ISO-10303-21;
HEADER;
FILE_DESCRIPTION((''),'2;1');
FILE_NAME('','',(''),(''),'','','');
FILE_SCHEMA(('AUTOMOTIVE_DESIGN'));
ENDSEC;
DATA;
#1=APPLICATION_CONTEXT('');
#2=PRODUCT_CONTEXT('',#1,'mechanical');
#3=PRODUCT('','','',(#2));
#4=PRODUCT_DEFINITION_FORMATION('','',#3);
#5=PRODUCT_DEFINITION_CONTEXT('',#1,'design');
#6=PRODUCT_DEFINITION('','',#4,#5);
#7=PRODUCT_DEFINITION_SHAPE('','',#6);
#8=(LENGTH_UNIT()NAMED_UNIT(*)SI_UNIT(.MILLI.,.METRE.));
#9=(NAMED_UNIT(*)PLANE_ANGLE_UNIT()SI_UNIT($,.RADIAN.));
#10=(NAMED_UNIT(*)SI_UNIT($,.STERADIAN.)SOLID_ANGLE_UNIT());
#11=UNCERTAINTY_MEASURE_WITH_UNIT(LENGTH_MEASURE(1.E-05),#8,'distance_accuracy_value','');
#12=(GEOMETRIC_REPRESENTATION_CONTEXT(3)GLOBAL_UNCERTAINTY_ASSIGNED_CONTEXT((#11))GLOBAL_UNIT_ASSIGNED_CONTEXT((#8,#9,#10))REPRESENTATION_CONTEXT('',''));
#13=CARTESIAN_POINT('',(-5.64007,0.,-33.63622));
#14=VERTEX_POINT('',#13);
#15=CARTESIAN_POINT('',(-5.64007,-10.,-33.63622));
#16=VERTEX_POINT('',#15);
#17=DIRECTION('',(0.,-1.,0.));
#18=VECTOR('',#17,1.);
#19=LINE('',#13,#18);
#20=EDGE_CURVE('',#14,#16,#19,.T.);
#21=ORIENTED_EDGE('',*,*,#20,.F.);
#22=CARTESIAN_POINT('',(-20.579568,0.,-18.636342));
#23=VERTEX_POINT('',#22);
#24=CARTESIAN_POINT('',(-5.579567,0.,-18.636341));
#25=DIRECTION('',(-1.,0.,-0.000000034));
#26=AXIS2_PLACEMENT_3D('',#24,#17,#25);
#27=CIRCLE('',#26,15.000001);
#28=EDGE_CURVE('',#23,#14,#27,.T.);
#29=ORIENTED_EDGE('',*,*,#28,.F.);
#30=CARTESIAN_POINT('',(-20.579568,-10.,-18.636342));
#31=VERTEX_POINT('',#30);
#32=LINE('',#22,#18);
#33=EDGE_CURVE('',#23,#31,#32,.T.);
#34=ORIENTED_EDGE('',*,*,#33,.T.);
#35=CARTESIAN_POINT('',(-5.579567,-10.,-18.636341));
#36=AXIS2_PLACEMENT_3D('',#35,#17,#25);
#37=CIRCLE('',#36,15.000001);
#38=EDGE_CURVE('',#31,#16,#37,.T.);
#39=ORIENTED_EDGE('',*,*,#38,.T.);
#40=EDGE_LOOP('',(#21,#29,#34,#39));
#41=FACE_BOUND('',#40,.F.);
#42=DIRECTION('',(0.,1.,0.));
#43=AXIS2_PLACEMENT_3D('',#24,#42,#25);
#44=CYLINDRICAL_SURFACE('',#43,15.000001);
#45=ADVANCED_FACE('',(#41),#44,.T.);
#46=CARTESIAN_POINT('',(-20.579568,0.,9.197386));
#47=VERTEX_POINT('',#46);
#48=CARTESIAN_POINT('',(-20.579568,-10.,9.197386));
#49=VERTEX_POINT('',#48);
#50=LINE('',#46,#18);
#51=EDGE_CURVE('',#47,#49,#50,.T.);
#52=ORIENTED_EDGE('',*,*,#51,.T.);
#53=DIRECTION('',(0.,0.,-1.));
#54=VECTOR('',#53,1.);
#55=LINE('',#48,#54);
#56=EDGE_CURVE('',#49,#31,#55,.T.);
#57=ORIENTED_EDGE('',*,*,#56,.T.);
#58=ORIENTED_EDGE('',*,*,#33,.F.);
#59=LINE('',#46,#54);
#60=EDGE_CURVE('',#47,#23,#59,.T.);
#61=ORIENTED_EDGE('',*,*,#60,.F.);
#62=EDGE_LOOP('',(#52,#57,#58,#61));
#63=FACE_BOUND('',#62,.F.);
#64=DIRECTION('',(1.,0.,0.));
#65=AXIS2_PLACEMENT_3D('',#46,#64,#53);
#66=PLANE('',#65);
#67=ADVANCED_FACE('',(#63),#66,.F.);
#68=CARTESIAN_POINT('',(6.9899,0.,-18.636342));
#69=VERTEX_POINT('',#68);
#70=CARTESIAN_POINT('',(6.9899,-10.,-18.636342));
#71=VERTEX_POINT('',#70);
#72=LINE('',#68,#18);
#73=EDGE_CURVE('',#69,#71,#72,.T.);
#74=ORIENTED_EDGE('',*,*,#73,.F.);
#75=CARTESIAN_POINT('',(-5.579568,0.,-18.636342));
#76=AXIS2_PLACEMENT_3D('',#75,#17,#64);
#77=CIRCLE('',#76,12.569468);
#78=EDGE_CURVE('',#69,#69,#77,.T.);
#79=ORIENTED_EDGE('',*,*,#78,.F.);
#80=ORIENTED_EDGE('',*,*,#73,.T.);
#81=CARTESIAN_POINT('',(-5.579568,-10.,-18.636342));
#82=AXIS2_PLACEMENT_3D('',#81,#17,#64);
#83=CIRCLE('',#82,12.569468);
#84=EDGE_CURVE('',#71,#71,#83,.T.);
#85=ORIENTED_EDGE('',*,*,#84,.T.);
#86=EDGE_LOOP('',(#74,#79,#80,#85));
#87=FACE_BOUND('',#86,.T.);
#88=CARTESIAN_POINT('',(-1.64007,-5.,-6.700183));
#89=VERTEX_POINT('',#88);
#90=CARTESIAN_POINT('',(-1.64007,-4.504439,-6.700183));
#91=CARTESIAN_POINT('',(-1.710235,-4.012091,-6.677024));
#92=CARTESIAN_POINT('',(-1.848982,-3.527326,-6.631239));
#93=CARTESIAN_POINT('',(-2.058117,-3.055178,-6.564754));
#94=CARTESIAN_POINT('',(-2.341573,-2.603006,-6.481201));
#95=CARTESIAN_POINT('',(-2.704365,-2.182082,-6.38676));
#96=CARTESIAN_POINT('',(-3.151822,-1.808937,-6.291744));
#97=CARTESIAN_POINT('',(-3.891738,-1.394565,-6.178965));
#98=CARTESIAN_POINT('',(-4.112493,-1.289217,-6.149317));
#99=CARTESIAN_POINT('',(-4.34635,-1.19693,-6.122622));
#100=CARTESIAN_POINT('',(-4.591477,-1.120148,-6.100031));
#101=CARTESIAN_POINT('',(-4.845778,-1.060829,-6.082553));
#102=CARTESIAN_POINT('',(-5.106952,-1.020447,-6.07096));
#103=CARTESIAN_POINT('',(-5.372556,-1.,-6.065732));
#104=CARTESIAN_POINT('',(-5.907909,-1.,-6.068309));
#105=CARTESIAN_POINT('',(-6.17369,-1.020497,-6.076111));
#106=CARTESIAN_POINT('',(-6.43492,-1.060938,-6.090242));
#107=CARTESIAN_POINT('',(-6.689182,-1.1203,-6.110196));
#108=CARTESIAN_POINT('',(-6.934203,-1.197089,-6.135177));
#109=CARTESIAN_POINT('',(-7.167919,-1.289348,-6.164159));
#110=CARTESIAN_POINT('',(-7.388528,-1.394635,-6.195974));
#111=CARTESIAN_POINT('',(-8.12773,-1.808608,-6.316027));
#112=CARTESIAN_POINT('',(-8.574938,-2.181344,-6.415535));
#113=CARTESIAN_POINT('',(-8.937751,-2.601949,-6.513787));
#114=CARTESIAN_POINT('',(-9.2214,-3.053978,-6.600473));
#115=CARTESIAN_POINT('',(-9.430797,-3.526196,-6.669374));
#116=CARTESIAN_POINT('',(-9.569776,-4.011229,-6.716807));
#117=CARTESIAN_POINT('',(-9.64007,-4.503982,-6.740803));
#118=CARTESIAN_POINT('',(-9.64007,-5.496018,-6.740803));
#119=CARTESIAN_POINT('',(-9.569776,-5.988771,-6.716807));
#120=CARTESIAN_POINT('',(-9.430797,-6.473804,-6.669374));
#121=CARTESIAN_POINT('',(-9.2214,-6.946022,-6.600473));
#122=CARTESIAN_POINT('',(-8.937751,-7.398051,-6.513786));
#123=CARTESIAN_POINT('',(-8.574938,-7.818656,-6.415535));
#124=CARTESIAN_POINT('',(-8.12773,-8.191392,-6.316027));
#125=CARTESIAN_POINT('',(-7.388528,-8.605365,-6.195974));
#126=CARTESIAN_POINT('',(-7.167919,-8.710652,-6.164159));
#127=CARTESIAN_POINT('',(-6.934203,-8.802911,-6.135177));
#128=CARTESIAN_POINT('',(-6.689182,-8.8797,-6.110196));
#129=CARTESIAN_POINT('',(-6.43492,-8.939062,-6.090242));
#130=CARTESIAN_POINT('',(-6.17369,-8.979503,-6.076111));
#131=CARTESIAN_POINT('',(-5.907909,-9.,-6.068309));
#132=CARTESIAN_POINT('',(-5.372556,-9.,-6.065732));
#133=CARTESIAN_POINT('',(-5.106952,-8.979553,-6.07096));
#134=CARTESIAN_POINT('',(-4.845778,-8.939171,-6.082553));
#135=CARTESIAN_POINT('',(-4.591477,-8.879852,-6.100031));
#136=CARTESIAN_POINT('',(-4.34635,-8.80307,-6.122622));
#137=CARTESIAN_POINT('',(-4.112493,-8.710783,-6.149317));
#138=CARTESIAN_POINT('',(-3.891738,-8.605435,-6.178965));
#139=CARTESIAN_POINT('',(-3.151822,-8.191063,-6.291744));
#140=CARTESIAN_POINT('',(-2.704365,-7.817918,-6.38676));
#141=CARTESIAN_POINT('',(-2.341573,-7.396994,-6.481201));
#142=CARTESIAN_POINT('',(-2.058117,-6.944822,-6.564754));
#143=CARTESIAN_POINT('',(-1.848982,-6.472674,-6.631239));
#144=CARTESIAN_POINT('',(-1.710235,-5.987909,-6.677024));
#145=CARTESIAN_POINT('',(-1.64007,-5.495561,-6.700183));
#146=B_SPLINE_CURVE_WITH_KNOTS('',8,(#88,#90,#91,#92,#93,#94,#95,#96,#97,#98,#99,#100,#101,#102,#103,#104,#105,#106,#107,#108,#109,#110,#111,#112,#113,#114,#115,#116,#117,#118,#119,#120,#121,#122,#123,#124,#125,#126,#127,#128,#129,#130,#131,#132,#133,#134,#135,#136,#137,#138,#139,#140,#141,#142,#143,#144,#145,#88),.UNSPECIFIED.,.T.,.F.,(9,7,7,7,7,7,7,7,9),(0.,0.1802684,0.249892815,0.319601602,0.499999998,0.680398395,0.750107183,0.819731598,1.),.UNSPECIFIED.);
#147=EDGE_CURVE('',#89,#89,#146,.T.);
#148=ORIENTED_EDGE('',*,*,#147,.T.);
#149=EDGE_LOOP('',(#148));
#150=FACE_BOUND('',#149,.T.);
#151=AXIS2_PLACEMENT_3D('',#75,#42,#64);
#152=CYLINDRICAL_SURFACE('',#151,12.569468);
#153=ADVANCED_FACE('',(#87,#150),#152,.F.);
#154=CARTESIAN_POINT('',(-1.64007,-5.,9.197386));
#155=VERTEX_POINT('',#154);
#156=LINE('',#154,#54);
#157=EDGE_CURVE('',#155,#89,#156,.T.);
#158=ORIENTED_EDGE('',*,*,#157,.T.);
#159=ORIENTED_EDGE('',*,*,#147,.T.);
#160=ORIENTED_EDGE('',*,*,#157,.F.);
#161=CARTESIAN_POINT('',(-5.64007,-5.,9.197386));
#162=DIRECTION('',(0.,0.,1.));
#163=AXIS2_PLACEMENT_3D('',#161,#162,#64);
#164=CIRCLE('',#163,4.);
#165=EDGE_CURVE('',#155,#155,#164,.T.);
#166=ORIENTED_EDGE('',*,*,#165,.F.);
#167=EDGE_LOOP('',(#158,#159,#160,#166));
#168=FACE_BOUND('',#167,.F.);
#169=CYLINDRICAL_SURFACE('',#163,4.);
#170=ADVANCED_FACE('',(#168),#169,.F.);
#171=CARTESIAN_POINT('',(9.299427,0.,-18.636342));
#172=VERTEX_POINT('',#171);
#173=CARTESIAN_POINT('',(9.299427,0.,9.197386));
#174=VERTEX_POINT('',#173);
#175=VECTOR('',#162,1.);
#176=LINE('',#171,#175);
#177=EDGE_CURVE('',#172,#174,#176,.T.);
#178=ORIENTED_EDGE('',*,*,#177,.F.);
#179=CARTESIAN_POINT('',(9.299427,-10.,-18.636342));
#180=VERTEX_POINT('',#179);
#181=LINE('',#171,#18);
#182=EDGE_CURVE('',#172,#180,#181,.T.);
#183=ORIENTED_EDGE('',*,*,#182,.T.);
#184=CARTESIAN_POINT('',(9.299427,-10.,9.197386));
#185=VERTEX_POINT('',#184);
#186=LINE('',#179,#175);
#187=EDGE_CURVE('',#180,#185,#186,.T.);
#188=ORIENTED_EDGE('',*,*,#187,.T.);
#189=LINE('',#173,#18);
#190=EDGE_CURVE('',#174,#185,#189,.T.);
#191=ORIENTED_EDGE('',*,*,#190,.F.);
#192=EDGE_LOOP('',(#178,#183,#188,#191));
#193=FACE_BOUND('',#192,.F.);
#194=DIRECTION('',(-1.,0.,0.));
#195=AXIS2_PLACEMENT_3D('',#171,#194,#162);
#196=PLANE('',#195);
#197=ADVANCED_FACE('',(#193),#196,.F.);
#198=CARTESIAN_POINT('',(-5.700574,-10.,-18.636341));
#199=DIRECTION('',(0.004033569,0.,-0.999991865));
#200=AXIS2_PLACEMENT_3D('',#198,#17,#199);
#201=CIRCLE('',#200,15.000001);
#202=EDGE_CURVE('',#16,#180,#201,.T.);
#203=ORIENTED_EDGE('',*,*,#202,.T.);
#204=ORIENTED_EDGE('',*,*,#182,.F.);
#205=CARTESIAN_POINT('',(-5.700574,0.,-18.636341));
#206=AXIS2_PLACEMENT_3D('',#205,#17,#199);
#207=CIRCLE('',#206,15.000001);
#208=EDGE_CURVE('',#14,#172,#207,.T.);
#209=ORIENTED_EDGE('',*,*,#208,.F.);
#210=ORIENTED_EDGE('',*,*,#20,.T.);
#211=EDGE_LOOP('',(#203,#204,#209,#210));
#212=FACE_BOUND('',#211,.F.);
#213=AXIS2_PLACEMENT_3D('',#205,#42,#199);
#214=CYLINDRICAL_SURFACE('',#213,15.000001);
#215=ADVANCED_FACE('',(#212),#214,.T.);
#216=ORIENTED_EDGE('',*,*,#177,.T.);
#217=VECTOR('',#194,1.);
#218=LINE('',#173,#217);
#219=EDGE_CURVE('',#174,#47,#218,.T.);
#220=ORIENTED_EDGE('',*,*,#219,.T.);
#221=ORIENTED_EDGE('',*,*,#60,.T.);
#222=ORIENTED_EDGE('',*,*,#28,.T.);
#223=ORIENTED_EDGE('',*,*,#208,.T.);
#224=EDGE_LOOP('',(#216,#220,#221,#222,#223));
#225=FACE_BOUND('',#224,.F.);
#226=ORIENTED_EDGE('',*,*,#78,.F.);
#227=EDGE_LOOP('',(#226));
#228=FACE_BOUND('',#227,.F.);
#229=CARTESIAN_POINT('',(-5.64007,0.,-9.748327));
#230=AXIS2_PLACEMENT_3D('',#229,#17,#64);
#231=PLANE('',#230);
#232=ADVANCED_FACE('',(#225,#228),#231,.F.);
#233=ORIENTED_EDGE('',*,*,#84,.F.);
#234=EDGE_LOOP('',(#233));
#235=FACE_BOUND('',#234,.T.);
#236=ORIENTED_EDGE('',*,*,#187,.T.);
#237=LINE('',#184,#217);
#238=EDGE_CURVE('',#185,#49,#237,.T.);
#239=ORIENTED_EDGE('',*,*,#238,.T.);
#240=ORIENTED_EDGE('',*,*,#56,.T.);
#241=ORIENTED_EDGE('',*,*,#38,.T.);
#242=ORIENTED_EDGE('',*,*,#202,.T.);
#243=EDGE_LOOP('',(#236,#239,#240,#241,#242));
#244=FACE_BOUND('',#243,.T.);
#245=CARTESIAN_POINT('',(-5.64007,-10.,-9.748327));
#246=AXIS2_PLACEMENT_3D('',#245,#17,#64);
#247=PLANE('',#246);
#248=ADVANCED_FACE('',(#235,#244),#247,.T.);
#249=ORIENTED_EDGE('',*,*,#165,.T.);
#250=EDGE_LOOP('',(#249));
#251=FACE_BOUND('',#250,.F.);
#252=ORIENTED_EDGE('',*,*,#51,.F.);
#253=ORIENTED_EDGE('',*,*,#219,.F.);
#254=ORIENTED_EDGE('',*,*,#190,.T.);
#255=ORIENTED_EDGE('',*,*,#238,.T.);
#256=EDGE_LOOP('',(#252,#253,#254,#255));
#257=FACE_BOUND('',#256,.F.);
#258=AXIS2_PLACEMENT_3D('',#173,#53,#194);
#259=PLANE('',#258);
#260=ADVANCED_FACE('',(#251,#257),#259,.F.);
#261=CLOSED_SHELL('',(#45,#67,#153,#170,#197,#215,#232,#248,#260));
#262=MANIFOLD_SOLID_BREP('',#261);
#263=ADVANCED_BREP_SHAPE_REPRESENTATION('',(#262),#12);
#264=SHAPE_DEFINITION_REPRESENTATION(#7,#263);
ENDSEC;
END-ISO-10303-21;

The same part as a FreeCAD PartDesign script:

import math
import FreeCAD as App
import Part
import Sketcher

V = App.Vector
Q = App.Units.Quantity

doc = App.newDocument("Part")
body = doc.addObject("PartDesign::Body", "Body")

sketch1 = body.newObject("Sketcher::SketchObject", "Sketch")
sketch1.AttachmentSupport = (doc.getObject("XZ_Plane"), [""])
sketch1.MapMode = "FlatFace"
sketch1.addGeometry([
    Part.LineSegment(V(9.299427, -18.636342, 0), V(9.299427, 9.197386, 0)),
    Part.LineSegment(V(9.299427, 9.197386, 0), V(-20.579568, 9.197386, 0)),
    Part.LineSegment(V(-20.579568, 9.197386, 0), V(-20.579568, -18.636342, 0)),
    Part.ArcOfCircle(Part.Circle(V(-5.579567, -18.636341, 0), V(0, 0, 1), 15.000001), math.radians(-179.999998), math.radians(-90.231103)),
    Part.ArcOfCircle(Part.Circle(V(-5.700574, -18.636341, 0), V(0, 0, 1), 15.000001), math.radians(-89.768893), math.radians(-0.000002)),
    Part.Circle(V(-5.579568, -18.636342, 0), V(0, 0, 1), 12.569468),
], False)
sketch1.addConstraint([
    Sketcher.Constraint("Coincident", 0, 2, 1, 1),
    Sketcher.Constraint("Coincident", 1, 2, 2, 1),
    Sketcher.Constraint("Tangent", 2, 2, 3, 1),
    Sketcher.Constraint("Coincident", 3, 2, 4, 1),
    Sketcher.Constraint("Tangent", 4, 2, 0, 1),
    Sketcher.Constraint("Vertical", 0),
    Sketcher.Constraint("Horizontal", 1),
    Sketcher.Constraint("Vertical", 2),
    Sketcher.Constraint("Coincident", 5, 3, 3, 3),
    Sketcher.Constraint("Equal", 3, 4),
    Sketcher.Constraint("Horizontal", 3, 3, 4, 3),
    Sketcher.Constraint("Radius", 3, Q("15.000001 mm")),
    Sketcher.Constraint("Diameter", 5, Q("25.138936 mm")),
    Sketcher.Constraint("DistanceY", 0, 1, 0, 2, Q("27.833728 mm")),
    Sketcher.Constraint("DistanceX", 3, 2, 5, 3, Q("0.060502 mm")),
    Sketcher.Constraint("DistanceY", 3, 3, -1, 1, Q("18.636341 mm")),
    Sketcher.Constraint("DistanceX", 3, 2, -1, 1, Q("5.64007 mm")),
])
pad1 = body.newObject("PartDesign::Pad", "Pad")
pad1.Profile = sketch1
pad1.Length = 10

sketch2 = body.newObject("Sketcher::SketchObject", "Sketch001")
sketch2.AttachmentSupport = (doc.getObject("XY_Plane"), [""])
sketch2.MapMode = "FlatFace"
sketch2.AttachmentOffset = App.Placement(V(0, 0, 9.197386), App.Rotation())
sketch2.addGeometry(Part.Circle(V(-5.6, -5, 0), V(0, 0, 1), 4), False)
sketch2.addConstraint([
    Sketcher.Constraint("Diameter", 0, Q("8 mm")),
    Sketcher.Constraint("DistanceY", 0, 3, -1, 1, Q("5 mm")),
    Sketcher.Constraint("DistanceX", 0, 3, -1, 1, Q("5.64007 mm")),
])
pocket1 = body.newObject("PartDesign::Pocket", "Pocket")
pocket1.Profile = sketch2
pocket1.Length = 25

doc.recompute()
